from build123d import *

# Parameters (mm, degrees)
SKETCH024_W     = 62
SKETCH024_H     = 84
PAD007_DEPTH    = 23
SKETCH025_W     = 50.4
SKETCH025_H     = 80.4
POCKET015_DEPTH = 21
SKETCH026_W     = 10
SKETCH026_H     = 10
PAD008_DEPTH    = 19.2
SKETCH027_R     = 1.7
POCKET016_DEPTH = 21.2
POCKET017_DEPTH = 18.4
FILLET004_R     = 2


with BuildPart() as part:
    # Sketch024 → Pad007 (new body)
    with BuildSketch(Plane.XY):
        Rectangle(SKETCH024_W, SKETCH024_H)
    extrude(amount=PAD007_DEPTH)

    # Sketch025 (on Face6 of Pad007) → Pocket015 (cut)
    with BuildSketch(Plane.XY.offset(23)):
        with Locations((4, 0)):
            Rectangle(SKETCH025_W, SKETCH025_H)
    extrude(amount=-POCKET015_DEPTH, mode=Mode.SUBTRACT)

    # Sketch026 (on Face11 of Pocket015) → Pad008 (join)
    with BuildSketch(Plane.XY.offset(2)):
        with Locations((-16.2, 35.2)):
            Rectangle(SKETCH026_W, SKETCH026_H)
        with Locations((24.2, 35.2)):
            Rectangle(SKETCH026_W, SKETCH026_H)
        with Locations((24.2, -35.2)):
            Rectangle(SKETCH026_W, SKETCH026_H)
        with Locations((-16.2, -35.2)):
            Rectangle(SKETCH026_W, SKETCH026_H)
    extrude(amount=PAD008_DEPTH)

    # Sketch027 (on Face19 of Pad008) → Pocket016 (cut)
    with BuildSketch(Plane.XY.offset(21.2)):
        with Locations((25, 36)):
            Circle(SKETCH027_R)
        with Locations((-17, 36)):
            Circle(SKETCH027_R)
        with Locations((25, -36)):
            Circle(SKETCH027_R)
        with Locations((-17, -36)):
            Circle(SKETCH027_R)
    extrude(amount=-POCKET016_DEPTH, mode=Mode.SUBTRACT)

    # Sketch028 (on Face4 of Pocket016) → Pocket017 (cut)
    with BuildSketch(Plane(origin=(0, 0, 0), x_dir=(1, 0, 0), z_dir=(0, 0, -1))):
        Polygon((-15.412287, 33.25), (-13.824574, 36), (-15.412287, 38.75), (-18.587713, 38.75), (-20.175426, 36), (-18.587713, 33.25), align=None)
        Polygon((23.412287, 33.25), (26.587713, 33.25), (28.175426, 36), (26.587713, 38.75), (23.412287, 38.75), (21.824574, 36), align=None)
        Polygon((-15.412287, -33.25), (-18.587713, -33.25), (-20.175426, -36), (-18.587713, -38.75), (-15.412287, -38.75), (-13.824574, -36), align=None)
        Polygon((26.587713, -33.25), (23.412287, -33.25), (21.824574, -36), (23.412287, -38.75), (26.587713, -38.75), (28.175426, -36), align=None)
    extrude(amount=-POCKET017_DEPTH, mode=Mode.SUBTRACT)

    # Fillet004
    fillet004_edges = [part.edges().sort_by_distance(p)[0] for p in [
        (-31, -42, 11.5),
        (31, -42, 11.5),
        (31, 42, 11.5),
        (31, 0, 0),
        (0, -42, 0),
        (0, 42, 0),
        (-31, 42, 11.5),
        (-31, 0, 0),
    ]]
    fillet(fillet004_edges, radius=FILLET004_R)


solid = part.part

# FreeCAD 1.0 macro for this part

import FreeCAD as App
import Part
import Sketcher
from FreeCAD import Vector
Q = App.Units.Quantity


def edges_at(feature, points):
    """Names of the edges that pass closest to the given points."""
    edges = feature.Shape.Edges
    near = lambda p: min(range(len(edges)), key=lambda i: edges[i].distToShape(Part.Vertex(*p))[0])
    return sorted({f"Edge{near(p) + 1}" for p in points})

doc = App.newDocument("Part")
body = doc.addObject("PartDesign::Body", "Body")

# Sketch on XY plane
sketch1 = doc.addObject("Sketcher::SketchObject", "Sketch")
body.addObject(sketch1)
sketch1.AttachmentSupport = (doc.XY_Plane, [""])
sketch1.MapMode = "FlatFace"
sketch1.addGeometry(Part.LineSegment(Vector(-31, 42, 0), Vector(-31, -42, 0)), False)
sketch1.addGeometry(Part.LineSegment(Vector(-31, -42, 0), Vector(31, -42, 0)), False)
sketch1.addGeometry(Part.LineSegment(Vector(31, -42, 0), Vector(31, 42, 0)), False)
sketch1.addGeometry(Part.LineSegment(Vector(31, 42, 0), Vector(-31, 42, 0)), False)
sketch1.addConstraint(Sketcher.Constraint("Coincident", 0, 2, 1, 1))
sketch1.addConstraint(Sketcher.Constraint("Coincident", 1, 2, 2, 1))
sketch1.addConstraint(Sketcher.Constraint("Coincident", 2, 2, 3, 1))
sketch1.addConstraint(Sketcher.Constraint("Coincident", 3, 2, 0, 1))
sketch1.addConstraint(Sketcher.Constraint("Vertical", 0))
sketch1.addConstraint(Sketcher.Constraint("Horizontal", 1))
sketch1.addConstraint(Sketcher.Constraint("Vertical", 2))
sketch1.addConstraint(Sketcher.Constraint("Horizontal", 3))
sketch1.addConstraint(Sketcher.Constraint("Symmetric", 0, 2, 2, 2, -1, 1))
sketch1.addConstraint(Sketcher.Constraint("DistanceX", 1, 1, 1, 2, 62.0))
sketch1.addConstraint(Sketcher.Constraint("DistanceY", 0, 2, 0, 1, 84.0))
pad1 = doc.addObject("PartDesign::Pad", "Pad")
body.addObject(pad1)
pad1.Profile = sketch1
pad1.Length = 23

# Sketch on XY plane
sketch2 = doc.addObject("Sketcher::SketchObject", "Sketch001")
body.addObject(sketch2)
sketch2.AttachmentSupport = (doc.XY_Plane, [""])
sketch2.MapMode = "FlatFace"
sketch2.AttachmentOffset = App.Placement(Vector(0, 0, 23), App.Rotation())
sketch2.addGeometry(Part.LineSegment(Vector(-21, 40, 0), Vector(-21, -40, 0)), False)
sketch2.addGeometry(Part.LineSegment(Vector(-21, -40, 0), Vector(29, -40, 0)), False)
sketch2.addGeometry(Part.LineSegment(Vector(29, -40, 0), Vector(29, 40, 0)), False)
sketch2.addGeometry(Part.LineSegment(Vector(29, 40, 0), Vector(-21, 40, 0)), False)
sketch2.addConstraint(Sketcher.Constraint("Coincident", 0, 2, 1, 1))
sketch2.addConstraint(Sketcher.Constraint("Coincident", 1, 2, 2, 1))
sketch2.addConstraint(Sketcher.Constraint("Coincident", 2, 2, 3, 1))
sketch2.addConstraint(Sketcher.Constraint("Coincident", 3, 2, 0, 1))
sketch2.addConstraint(Sketcher.Constraint("Vertical", 0))
sketch2.addConstraint(Sketcher.Constraint("Horizontal", 1))
sketch2.addConstraint(Sketcher.Constraint("Vertical", 2))
sketch2.addConstraint(Sketcher.Constraint("Horizontal", 3))
sketch2.addConstraint(Sketcher.Constraint("DistanceX", 1, 1, 1, 2, 50.4))
sketch2.addConstraint(Sketcher.Constraint("DistanceY", 0, 2, 0, 1, 80.4))
sketch2.addConstraint(Sketcher.Constraint("DistanceX", 0, 2, -1, 1, 21.2))
sketch2.addConstraint(Sketcher.Constraint("DistanceY", 0, 2, -1, 1, 40.2))
pocket1 = doc.addObject("PartDesign::Pocket", "Pocket")
body.addObject(pocket1)
pocket1.Profile = sketch2
pocket1.Length = 21

# Sketch on XY plane
sketch3 = doc.addObject("Sketcher::SketchObject", "Sketch002")
body.addObject(sketch3)
sketch3.AttachmentSupport = (doc.XY_Plane, [""])
sketch3.MapMode = "FlatFace"
sketch3.AttachmentOffset = App.Placement(Vector(0, 0, 2), App.Rotation())
sketch3.addGeometry(Part.LineSegment(Vector(-21, 40, 0), Vector(-21, 30, 0)), False)
sketch3.addGeometry(Part.LineSegment(Vector(-21, 30, 0), Vector(-11, 30, 0)), False)
sketch3.addGeometry(Part.LineSegment(Vector(-11, 30, 0), Vector(-11, 40, 0)), False)
sketch3.addGeometry(Part.LineSegment(Vector(-11, 40, 0), Vector(-21, 40, 0)), False)
sketch3.addGeometry(Part.LineSegment(Vector(19, 40, 0), Vector(19, 30, 0)), False)
sketch3.addGeometry(Part.LineSegment(Vector(19, 30, 0), Vector(29, 30, 0)), False)
sketch3.addGeometry(Part.LineSegment(Vector(29, 30, 0), Vector(29, 40, 0)), False)
sketch3.addGeometry(Part.LineSegment(Vector(29, 40, 0), Vector(19, 40, 0)), False)
sketch3.addGeometry(Part.LineSegment(Vector(19, -30, 0), Vector(19, -40, 0)), False)
sketch3.addGeometry(Part.LineSegment(Vector(19, -40, 0), Vector(29, -40, 0)), False)
sketch3.addGeometry(Part.LineSegment(Vector(29, -40, 0), Vector(29, -30, 0)), False)
sketch3.addGeometry(Part.LineSegment(Vector(29, -30, 0), Vector(19, -30, 0)), False)
sketch3.addGeometry(Part.LineSegment(Vector(-21, -30, 0), Vector(-21, -40, 0)), False)
sketch3.addGeometry(Part.LineSegment(Vector(-21, -40, 0), Vector(-11, -40, 0)), False)
sketch3.addGeometry(Part.LineSegment(Vector(-11, -40, 0), Vector(-11, -30, 0)), False)
sketch3.addGeometry(Part.LineSegment(Vector(-11, -30, 0), Vector(-21, -30, 0)), False)
sketch3.addConstraint(Sketcher.Constraint("Coincident", 0, 2, 1, 1))
sketch3.addConstraint(Sketcher.Constraint("Coincident", 1, 2, 2, 1))
sketch3.addConstraint(Sketcher.Constraint("Coincident", 2, 2, 3, 1))
sketch3.addConstraint(Sketcher.Constraint("Coincident", 3, 2, 0, 1))
sketch3.addConstraint(Sketcher.Constraint("Coincident", 4, 2, 5, 1))
sketch3.addConstraint(Sketcher.Constraint("Coincident", 5, 2, 6, 1))
sketch3.addConstraint(Sketcher.Constraint("Coincident", 6, 2, 7, 1))
sketch3.addConstraint(Sketcher.Constraint("Coincident", 7, 2, 4, 1))
sketch3.addConstraint(Sketcher.Constraint("Coincident", 8, 2, 9, 1))
sketch3.addConstraint(Sketcher.Constraint("Coincident", 9, 2, 10, 1))
sketch3.addConstraint(Sketcher.Constraint("Coincident", 10, 2, 11, 1))
sketch3.addConstraint(Sketcher.Constraint("Coincident", 11, 2, 8, 1))
sketch3.addConstraint(Sketcher.Constraint("Coincident", 12, 2, 13, 1))
sketch3.addConstraint(Sketcher.Constraint("Coincident", 13, 2, 14, 1))
sketch3.addConstraint(Sketcher.Constraint("Coincident", 14, 2, 15, 1))
sketch3.addConstraint(Sketcher.Constraint("Coincident", 15, 2, 12, 1))
sketch3.addConstraint(Sketcher.Constraint("Vertical", 0))
sketch3.addConstraint(Sketcher.Constraint("Horizontal", 1))
sketch3.addConstraint(Sketcher.Constraint("Vertical", 2))
sketch3.addConstraint(Sketcher.Constraint("Horizontal", 3))
sketch3.addConstraint(Sketcher.Constraint("Vertical", 4))
sketch3.addConstraint(Sketcher.Constraint("Horizontal", 5))
sketch3.addConstraint(Sketcher.Constraint("Vertical", 6))
sketch3.addConstraint(Sketcher.Constraint("Horizontal", 7))
sketch3.addConstraint(Sketcher.Constraint("Vertical", 8))
sketch3.addConstraint(Sketcher.Constraint("Horizontal", 9))
sketch3.addConstraint(Sketcher.Constraint("Vertical", 10))
sketch3.addConstraint(Sketcher.Constraint("Horizontal", 11))
sketch3.addConstraint(Sketcher.Constraint("Vertical", 12))
sketch3.addConstraint(Sketcher.Constraint("Horizontal", 13))
sketch3.addConstraint(Sketcher.Constraint("Vertical", 14))
sketch3.addConstraint(Sketcher.Constraint("Horizontal", 15))
sketch3.addConstraint(Sketcher.Constraint("Symmetric", 7, 2, 8, 2, -1))
sketch3.addConstraint(Sketcher.Constraint("Symmetric", 5, 2, 10, 2, -1))
sketch3.addConstraint(Sketcher.Constraint("Symmetric", 3, 2, 12, 2, -1))
sketch3.addConstraint(Sketcher.Constraint("Symmetric", 1, 2, 14, 2, -1))
sketch3.addConstraint(Sketcher.Constraint("Horizontal", 1, 2, 4, 2))
sketch3.addConstraint(Sketcher.Constraint("Horizontal", 3, 2, 6, 2))
sketch3.addConstraint(Sketcher.Constraint("Equal", 3, 5))
sketch3.addConstraint(Sketcher.Constraint("Equal", 15, 0))
sketch3.addConstraint(Sketcher.Constraint("DistanceX", 1, 1, 1, 2, 10.0))
sketch3.addConstraint(Sketcher.Constraint("DistanceX", 0, 2, -1, 1, 21.2))
sketch3.addConstraint(Sketcher.Constraint("DistanceY", -1, 1, 0, 2, 30.2))
sketch3.addConstraint(Sketcher.Constraint("DistanceX", -1, 1, 4, 2, 19.2))
pad2 = doc.addObject("PartDesign::Pad", "Pad001")
body.addObject(pad2)
pad2.Profile = sketch3
pad2.Length = 19.2

# Sketch on XY plane
sketch4 = doc.addObject("Sketcher::SketchObject", "Sketch003")
body.addObject(sketch4)
sketch4.AttachmentSupport = (doc.XY_Plane, [""])
sketch4.MapMode = "FlatFace"
sketch4.AttachmentOffset = App.Placement(Vector(0, 0, 21.2), App.Rotation())
sketch4.addGeometry(Part.Circle(Vector(25, 36, 0), Vector(0, 0, 1), 1.7), False)
sketch4.addGeometry(Part.Circle(Vector(-17, 36, 0), Vector(0, 0, 1), 1.7), False)
sketch4.addGeometry(Part.Circle(Vector(25, -36, 0), Vector(0, 0, 1), 1.7), False)
sketch4.addGeometry(Part.Circle(Vector(-17, -36, 0), Vector(0, 0, 1), 1.7), False)
sketch4.addConstraint(Sketcher.Constraint("Equal", 0, 1))
sketch4.addConstraint(Sketcher.Constraint("Equal", 1, 2))
sketch4.addConstraint(Sketcher.Constraint("Equal", 2, 3))
sketch4.addConstraint(Sketcher.Constraint("Symmetric", 0, 3, 2, 3, -1))
sketch4.addConstraint(Sketcher.Constraint("Symmetric", 1, 3, 3, 3, -1))
sketch4.addConstraint(Sketcher.Constraint("Horizontal", 0, 3, 1, 3))
sketch4.addConstraint(Sketcher.Constraint("Diameter", 0, 3.4))
sketch4.addConstraint(Sketcher.Constraint("DistanceX", -1, 1, 0, 3, 25.0))
sketch4.addConstraint(Sketcher.Constraint("DistanceY", -1, 1, 0, 3, 36.0))
sketch4.addConstraint(Sketcher.Constraint("DistanceX", 1, 3, -1, 1, 17.0))
pocket2 = doc.addObject("PartDesign::Pocket", "Pocket001")
body.addObject(pocket2)
pocket2.Profile = sketch4
pocket2.Length = 21.2

# Sketch on XY plane
sketch5 = doc.addObject("Sketcher::SketchObject", "Sketch004")
body.addObject(sketch5)
sketch5.AttachmentSupport = (doc.XY_Plane, [""])
sketch5.MapMode = "FlatFace"
sketch5.addGeometry(Part.LineSegment(Vector(-15.4, -33.2, 0), Vector(-13.8, -36, 0)), False)
sketch5.addGeometry(Part.LineSegment(Vector(-13.8, -36, 0), Vector(-15.4, -38.8, 0)), False)
sketch5.addGeometry(Part.LineSegment(Vector(-15.4, -38.8, 0), Vector(-18.6, -38.8, 0)), False)
sketch5.addGeometry(Part.LineSegment(Vector(-18.6, -38.8, 0), Vector(-20.2, -36, 0)), False)
sketch5.addGeometry(Part.LineSegment(Vector(-20.2, -36, 0), Vector(-18.6, -33.2, 0)), False)
sketch5.addGeometry(Part.LineSegment(Vector(-18.6, -33.2, 0), Vector(-15.4, -33.2, 0)), False)
sketch5.addGeometry(Part.LineSegment(Vector(23.4, -33.2, 0), Vector(26.6, -33.2, 0)), False)
sketch5.addGeometry(Part.LineSegment(Vector(26.6, -33.2, 0), Vector(28.2, -36, 0)), False)
sketch5.addGeometry(Part.LineSegment(Vector(28.2, -36, 0), Vector(26.6, -38.8, 0)), False)
sketch5.addGeometry(Part.LineSegment(Vector(26.6, -38.8, 0), Vector(23.4, -38.8, 0)), False)
sketch5.addGeometry(Part.LineSegment(Vector(23.4, -38.8, 0), Vector(21.8, -36, 0)), False)
sketch5.addGeometry(Part.LineSegment(Vector(21.8, -36, 0), Vector(23.4, -33.2, 0)), False)
sketch5.addGeometry(Part.LineSegment(Vector(-15.4, 33.2, 0), Vector(-18.6, 33.2, 0)), False)
sketch5.addGeometry(Part.LineSegment(Vector(-18.6, 33.2, 0), Vector(-20.2, 36, 0)), False)
sketch5.addGeometry(Part.LineSegment(Vector(-20.2, 36, 0), Vector(-18.6, 38.8, 0)), False)
sketch5.addGeometry(Part.LineSegment(Vector(-18.6, 38.8, 0), Vector(-15.4, 38.8, 0)), False)
sketch5.addGeometry(Part.LineSegment(Vector(-15.4, 38.8, 0), Vector(-13.8, 36, 0)), False)
sketch5.addGeometry(Part.LineSegment(Vector(-13.8, 36, 0), Vector(-15.4, 33.2, 0)), False)
sketch5.addGeometry(Part.LineSegment(Vector(26.6, 33.2, 0), Vector(23.4, 33.2, 0)), False)
sketch5.addGeometry(Part.LineSegment(Vector(23.4, 33.2, 0), Vector(21.8, 36, 0)), False)
sketch5.addGeometry(Part.LineSegment(Vector(21.8, 36, 0), Vector(23.4, 38.8, 0)), False)
sketch5.addGeometry(Part.LineSegment(Vector(23.4, 38.8, 0), Vector(26.6, 38.8, 0)), False)
sketch5.addGeometry(Part.LineSegment(Vector(26.6, 38.8, 0), Vector(28.2, 36, 0)), False)
sketch5.addGeometry(Part.LineSegment(Vector(28.2, 36, 0), Vector(26.6, 33.2, 0)), False)
sketch5.addConstraint(Sketcher.Constraint("Coincident", 0, 2, 1, 1))
sketch5.addConstraint(Sketcher.Constraint("Coincident", 1, 2, 2, 1))
sketch5.addConstraint(Sketcher.Constraint("Coincident", 2, 2, 3, 1))
sketch5.addConstraint(Sketcher.Constraint("Coincident", 3, 2, 4, 1))
sketch5.addConstraint(Sketcher.Constraint("Coincident", 4, 2, 5, 1))
sketch5.addConstraint(Sketcher.Constraint("Coincident", 5, 2, 0, 1))
sketch5.addConstraint(Sketcher.Constraint("Coincident", 6, 2, 7, 1))
sketch5.addConstraint(Sketcher.Constraint("Coincident", 7, 2, 8, 1))
sketch5.addConstraint(Sketcher.Constraint("Coincident", 8, 2, 9, 1))
sketch5.addConstraint(Sketcher.Constraint("Coincident", 9, 2, 10, 1))
sketch5.addConstraint(Sketcher.Constraint("Coincident", 10, 2, 11, 1))
sketch5.addConstraint(Sketcher.Constraint("Coincident", 11, 2, 6, 1))
sketch5.addConstraint(Sketcher.Constraint("Coincident", 12, 2, 13, 1))
sketch5.addConstraint(Sketcher.Constraint("Coincident", 13, 2, 14, 1))
sketch5.addConstraint(Sketcher.Constraint("Coincident", 14, 2, 15, 1))
sketch5.addConstraint(Sketcher.Constraint("Coincident", 15, 2, 16, 1))
sketch5.addConstraint(Sketcher.Constraint("Coincident", 16, 2, 17, 1))
sketch5.addConstraint(Sketcher.Constraint("Coincident", 17, 2, 12, 1))
sketch5.addConstraint(Sketcher.Constraint("Coincident", 18, 2, 19, 1))
sketch5.addConstraint(Sketcher.Constraint("Coincident", 19, 2, 20, 1))
sketch5.addConstraint(Sketcher.Constraint("Coincident", 20, 2, 21, 1))
sketch5.addConstraint(Sketcher.Constraint("Coincident", 21, 2, 22, 1))
sketch5.addConstraint(Sketcher.Constraint("Coincident", 22, 2, 23, 1))
sketch5.addConstraint(Sketcher.Constraint("Coincident", 23, 2, 18, 1))
sketch5.addConstraint(Sketcher.Constraint("Horizontal", 2))
sketch5.addConstraint(Sketcher.Constraint("Horizontal", 5))
sketch5.addConstraint(Sketcher.Constraint("Horizontal", 6))
sketch5.addConstraint(Sketcher.Constraint("Horizontal", 9))
sketch5.addConstraint(Sketcher.Constraint("Horizontal", 12))
sketch5.addConstraint(Sketcher.Constraint("Horizontal", 15))
sketch5.addConstraint(Sketcher.Constraint("Horizontal", 18))
sketch5.addConstraint(Sketcher.Constraint("Horizontal", 21))
sketch5.addConstraint(Sketcher.Constraint("Symmetric", 4, 2, 12, 2, -1))
sketch5.addConstraint(Sketcher.Constraint("Symmetric", 3, 2, 13, 2, -1))
sketch5.addConstraint(Sketcher.Constraint("Symmetric", 2, 2, 14, 2, -1))
sketch5.addConstraint(Sketcher.Constraint("Symmetric", 0, 2, 16, 2, -1))
sketch5.addConstraint(Sketcher.Constraint("Symmetric", 11, 2, 18, 2, -1))
sketch5.addConstraint(Sketcher.Constraint("Symmetric", 10, 2, 19, 2, -1))
sketch5.addConstraint(Sketcher.Constraint("Symmetric", 9, 2, 20, 2, -1))
sketch5.addConstraint(Sketcher.Constraint("Symmetric", 7, 2, 22, 2, -1))
sketch5.addConstraint(Sketcher.Constraint("Parallel", 0, 3))
sketch5.addConstraint(Sketcher.Constraint("Parallel", 1, 4))
sketch5.addConstraint(Sketcher.Constraint("Parallel", 3, 7))
sketch5.addConstraint(Sketcher.Constraint("Parallel", 4, 8))
sketch5.addConstraint(Sketcher.Constraint("Parallel", 7, 10))
sketch5.addConstraint(Sketcher.Constraint("Parallel", 8, 11))
sketch5.addConstraint(Sketcher.Constraint("Parallel", 10, 13))
sketch5.addConstraint(Sketcher.Constraint("Parallel", 13, 16))
sketch5.addConstraint(Sketcher.Constraint("Parallel", 14, 17))
sketch5.addConstraint(Sketcher.Constraint("Parallel", 19, 22))
sketch5.addConstraint(Sketcher.Constraint("Parallel", 20, 23))
sketch5.addConstraint(Sketcher.Constraint("Horizontal", 0, 2, 3, 2))
sketch5.addConstraint(Sketcher.Constraint("Horizontal", 5, 2, 6, 2))
sketch5.addConstraint(Sketcher.Constraint("Horizontal", 3, 2, 7, 2))
sketch5.addConstraint(Sketcher.Constraint("Horizontal", 2, 2, 8, 2))
sketch5.addConstraint(Sketcher.Constraint("Horizontal", 7, 2, 10, 2))
sketch5.addConstraint(Sketcher.Constraint("Vertical", 2, 2, 4, 2))
sketch5.addConstraint(Sketcher.Constraint("Equal", 5, 6))
sketch5.addConstraint(Sketcher.Constraint("Angle", 0, Q("-60.000004 deg")))
sketch5.addConstraint(Sketcher.Constraint("DistanceY", 0, 2, -1, 1, 36.0))
sketch5.addConstraint(Sketcher.Constraint("DistanceX", 5, 2, 6, 2, 42.0))
sketch5.addConstraint(Sketcher.Constraint("DistanceY", 2, 2, 4, 2, 5.5))
sketch5.addConstraint(Sketcher.Constraint("DistanceX", 2, 2, 2, 1, 3.175426))
sketch5.addConstraint(Sketcher.Constraint("DistanceX", 0, 2, -1, 1, 13.824574))
pocket3 = doc.addObject("PartDesign::Pocket", "Pocket002")
body.addObject(pocket3)
pocket3.Profile = sketch5
pocket3.Length = 18.4
pocket3.Reversed = True
doc.recompute()

fillet = doc.addObject("PartDesign::Fillet", "Fillet")
body.addObject(fillet)
fillet.Base = (pocket3, edges_at(pocket3, [
    (-31, -42, 11.5),
    (31, -42, 11.5),
    (31, 42, 11.5),
    (31, 0, 0),
    (0, -42, 0),
    (0, 42, 0),
    (-31, 42, 11.5),
    (-31, 0, 0),
]))
fillet.Radius = 2

doc.recompute()
